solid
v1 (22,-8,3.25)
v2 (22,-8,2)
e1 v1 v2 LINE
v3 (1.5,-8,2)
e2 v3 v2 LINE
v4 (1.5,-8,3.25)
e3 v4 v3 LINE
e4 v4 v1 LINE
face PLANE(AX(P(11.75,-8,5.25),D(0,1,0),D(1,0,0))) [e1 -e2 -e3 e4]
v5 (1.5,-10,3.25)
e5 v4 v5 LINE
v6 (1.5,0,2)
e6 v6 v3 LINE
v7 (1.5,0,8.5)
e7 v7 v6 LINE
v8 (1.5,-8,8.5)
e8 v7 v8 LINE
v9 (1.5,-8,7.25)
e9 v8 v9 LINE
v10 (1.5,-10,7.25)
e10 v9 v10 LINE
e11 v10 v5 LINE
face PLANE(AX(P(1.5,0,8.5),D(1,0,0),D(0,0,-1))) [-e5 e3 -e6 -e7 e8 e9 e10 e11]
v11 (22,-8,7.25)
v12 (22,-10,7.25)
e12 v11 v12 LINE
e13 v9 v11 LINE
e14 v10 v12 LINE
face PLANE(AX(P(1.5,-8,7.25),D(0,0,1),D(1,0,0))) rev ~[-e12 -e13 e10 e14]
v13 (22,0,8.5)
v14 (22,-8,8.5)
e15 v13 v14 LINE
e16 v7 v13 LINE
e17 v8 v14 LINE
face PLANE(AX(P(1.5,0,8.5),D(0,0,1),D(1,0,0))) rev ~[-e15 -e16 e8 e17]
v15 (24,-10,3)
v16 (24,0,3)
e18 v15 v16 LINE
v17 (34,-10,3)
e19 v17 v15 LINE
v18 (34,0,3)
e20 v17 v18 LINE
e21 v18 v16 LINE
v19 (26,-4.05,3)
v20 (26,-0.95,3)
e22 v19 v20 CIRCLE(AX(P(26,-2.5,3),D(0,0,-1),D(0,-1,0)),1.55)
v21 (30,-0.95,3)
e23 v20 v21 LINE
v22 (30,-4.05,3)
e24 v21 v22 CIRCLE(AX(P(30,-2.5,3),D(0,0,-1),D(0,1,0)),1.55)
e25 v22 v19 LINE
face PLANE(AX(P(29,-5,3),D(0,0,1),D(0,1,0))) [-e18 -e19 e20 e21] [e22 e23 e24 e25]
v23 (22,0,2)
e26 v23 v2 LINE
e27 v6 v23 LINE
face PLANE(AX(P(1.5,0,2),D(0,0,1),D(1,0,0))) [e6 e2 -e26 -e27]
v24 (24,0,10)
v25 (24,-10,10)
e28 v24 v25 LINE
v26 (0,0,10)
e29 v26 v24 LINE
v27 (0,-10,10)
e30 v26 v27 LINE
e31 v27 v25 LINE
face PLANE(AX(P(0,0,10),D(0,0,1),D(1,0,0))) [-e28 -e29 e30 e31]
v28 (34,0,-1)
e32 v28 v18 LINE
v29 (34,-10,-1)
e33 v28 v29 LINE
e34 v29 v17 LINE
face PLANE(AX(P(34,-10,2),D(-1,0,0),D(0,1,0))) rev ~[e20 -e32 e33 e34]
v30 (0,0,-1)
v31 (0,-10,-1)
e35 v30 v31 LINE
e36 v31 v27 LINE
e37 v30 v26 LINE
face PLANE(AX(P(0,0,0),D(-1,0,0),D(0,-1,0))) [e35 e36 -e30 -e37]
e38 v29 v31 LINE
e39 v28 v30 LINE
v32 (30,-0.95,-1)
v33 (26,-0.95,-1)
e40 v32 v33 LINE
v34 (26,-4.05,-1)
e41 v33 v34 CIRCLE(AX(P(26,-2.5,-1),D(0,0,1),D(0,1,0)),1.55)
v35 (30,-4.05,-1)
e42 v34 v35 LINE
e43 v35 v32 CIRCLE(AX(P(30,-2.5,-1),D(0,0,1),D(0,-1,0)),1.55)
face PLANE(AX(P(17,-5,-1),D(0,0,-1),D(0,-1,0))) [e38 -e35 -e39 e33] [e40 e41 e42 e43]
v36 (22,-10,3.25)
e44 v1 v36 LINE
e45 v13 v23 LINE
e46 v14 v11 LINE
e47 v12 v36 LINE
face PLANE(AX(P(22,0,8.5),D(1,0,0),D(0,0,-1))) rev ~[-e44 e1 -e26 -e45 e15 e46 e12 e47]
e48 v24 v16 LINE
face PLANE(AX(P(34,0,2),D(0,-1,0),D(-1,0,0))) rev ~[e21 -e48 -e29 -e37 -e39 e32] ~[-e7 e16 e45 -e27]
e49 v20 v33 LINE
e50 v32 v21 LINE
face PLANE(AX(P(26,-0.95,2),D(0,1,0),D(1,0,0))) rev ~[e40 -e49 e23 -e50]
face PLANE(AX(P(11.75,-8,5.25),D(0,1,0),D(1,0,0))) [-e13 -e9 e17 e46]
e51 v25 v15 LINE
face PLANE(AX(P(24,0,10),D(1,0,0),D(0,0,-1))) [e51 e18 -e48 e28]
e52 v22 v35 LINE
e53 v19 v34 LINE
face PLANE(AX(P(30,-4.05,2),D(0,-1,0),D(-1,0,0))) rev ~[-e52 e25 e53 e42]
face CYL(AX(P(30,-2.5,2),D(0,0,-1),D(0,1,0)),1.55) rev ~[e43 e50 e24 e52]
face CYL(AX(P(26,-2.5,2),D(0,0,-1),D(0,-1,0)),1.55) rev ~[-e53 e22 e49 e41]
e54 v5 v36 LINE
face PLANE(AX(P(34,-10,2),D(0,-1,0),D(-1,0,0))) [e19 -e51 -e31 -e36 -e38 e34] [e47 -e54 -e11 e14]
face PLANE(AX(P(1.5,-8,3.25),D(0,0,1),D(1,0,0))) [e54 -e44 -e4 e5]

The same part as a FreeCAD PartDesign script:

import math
import FreeCAD as App
import Part
import Sketcher
Q = App.Units.Quantity

doc = App.newDocument("Part")
body = doc.addObject("PartDesign::Body", "Body")

sketch1 = body.newObject("Sketcher::SketchObject", "Sketch")
sketch1.AttachmentSupport = (doc.getObject("XZ_Plane"), [""])
sketch1.MapMode = "FlatFace"
sketch1.addGeometry(Part.LineSegment(App.Vector(24, 10, 0), App.Vector(0, 10, 0)), False)
sketch1.addGeometry(Part.LineSegment(App.Vector(0, 10, 0), App.Vector(0, 0, 0)), False)
sketch1.addGeometry(Part.LineSegment(App.Vector(0, 0, 0), App.Vector(34, 0, 0)), False)
sketch1.addGeometry(Part.LineSegment(App.Vector(34, 0, 0), App.Vector(34, 2, 0)), False)
sketch1.addGeometry(Part.LineSegment(App.Vector(34, 2, 0), App.Vector(24, 2, 0)), False)
sketch1.addGeometry(Part.LineSegment(App.Vector(24, 2, 0), App.Vector(24, 10, 0)), False)
sketch1.addConstraint(Sketcher.Constraint("Coincident", 0, 2, 1, 1))
sketch1.addConstraint(Sketcher.Constraint("Coincident", 1, 2, 2, 1))
sketch1.addConstraint(Sketcher.Constraint("Coincident", 2, 2, 3, 1))
sketch1.addConstraint(Sketcher.Constraint("Coincident", 3, 2, 4, 1))
sketch1.addConstraint(Sketcher.Constraint("Coincident", 4, 2, 5, 1))
sketch1.addConstraint(Sketcher.Constraint("Coincident", 5, 2, 0, 1))
sketch1.addConstraint(Sketcher.Constraint("Horizontal", 0))
sketch1.addConstraint(Sketcher.Constraint("Vertical", 1))
sketch1.addConstraint(Sketcher.Constraint("Horizontal", 2))
sketch1.addConstraint(Sketcher.Constraint("Vertical", 3))
sketch1.addConstraint(Sketcher.Constraint("Horizontal", 4))
sketch1.addConstraint(Sketcher.Constraint("Vertical", 5))
sketch1.addConstraint(Sketcher.Constraint("Coincident", 1, 2, -1, 1))
sketch1.addConstraint(Sketcher.Constraint("Equal", 4, 1))
sketch1.addConstraint(Sketcher.Constraint("DistanceX", 0, 2, 0, 1, Q("24 mm")))
sketch1.addConstraint(Sketcher.Constraint("DistanceX", 2, 1, 2, 2, Q("34 mm")))
sketch1.addConstraint(Sketcher.Constraint("DistanceY", 3, 1, 3, 2, Q("2 mm")))
pad1 = body.newObject("PartDesign::Pad", "Pad")
pad1.Profile = sketch1
pad1.Length = 10

sketch2 = body.newObject("Sketcher::SketchObject", "Sketch001")
sketch2.AttachmentSupport = (doc.getObject("XZ_Plane"), [""])
sketch2.MapMode = "FlatFace"
sketch2.addGeometry(Part.LineSegment(App.Vector(2, 2, 0), App.Vector(2, 8, 0)), False)
sketch2.addGeometry(Part.LineSegment(App.Vector(2, 8, 0), App.Vector(22, 8, 0)), False)
sketch2.addGeometry(Part.LineSegment(App.Vector(22, 8, 0), App.Vector(22, 2, 0)), False)
sketch2.addGeometry(Part.LineSegment(App.Vector(22, 2, 0), App.Vector(2, 2, 0)), False)
sketch2.addConstraint(Sketcher.Constraint("Coincident", 0, 2, 1, 1))
sketch2.addConstraint(Sketcher.Constraint("Coincident", 1, 2, 2, 1))
sketch2.addConstraint(Sketcher.Constraint("Coincident", 2, 2, 3, 1))
sketch2.addConstraint(Sketcher.Constraint("Coincident", 3, 2, 0, 1))
sketch2.addConstraint(Sketcher.Constraint("Vertical", 0))
sketch2.addConstraint(Sketcher.Constraint("Horizontal", 1))
sketch2.addConstraint(Sketcher.Constraint("Vertical", 2))
sketch2.addConstraint(Sketcher.Constraint("Horizontal", 3))
sketch2.addConstraint(Sketcher.Constraint("DistanceX", 1, 1, 1, 2, Q("20.5 mm")))
sketch2.addConstraint(Sketcher.Constraint("DistanceY", 0, 1, 0, 2, Q("6.5 mm")))
sketch2.addConstraint(Sketcher.Constraint("DistanceX", -1, 1, 1, 2, Q("22 mm")))
sketch2.addConstraint(Sketcher.Constraint("DistanceY", -1, 1, 2, 2, Q("2 mm")))
pocket1 = body.newObject("PartDesign::Pocket", "Pocket")
pocket1.Profile = sketch2
pocket1.Length = 8
pocket1.Reversed = True

sketch3 = body.newObject("Sketcher::SketchObject", "Sketch002")
sketch3.AttachmentSupport = (doc.getObject("XZ_Plane"), [""])
sketch3.MapMode = "FlatFace"
sketch3.AttachmentOffset = App.Placement(App.Vector(0, 0, 8), App.Rotation())
sketch3.addGeometry(Part.LineSegment(App.Vector(1.5, 3.2, 0), App.Vector(1.5, 7.2, 0)), False)
sketch3.addGeometry(Part.LineSegment(App.Vector(1.5, 7.2, 0), App.Vector(22, 7.2, 0)), False)
sketch3.addGeometry(Part.LineSegment(App.Vector(22, 7.2, 0), App.Vector(22, 3.2, 0)), False)
sketch3.addGeometry(Part.LineSegment(App.Vector(22, 3.2, 0), App.Vector(1.5, 3.2, 0)), False)
sketch3.addConstraint(Sketcher.Constraint("Coincident", 0, 2, 1, 1))
sketch3.addConstraint(Sketcher.Constraint("Coincident", 1, 2, 2, 1))
sketch3.addConstraint(Sketcher.Constraint("Coincident", 2, 2, 3, 1))
sketch3.addConstraint(Sketcher.Constraint("Coincident", 3, 2, 0, 1))
sketch3.addConstraint(Sketcher.Constraint("Vertical", 0))
sketch3.addConstraint(Sketcher.Constraint("Horizontal", 1))
sketch3.addConstraint(Sketcher.Constraint("Vertical", 2))
sketch3.addConstraint(Sketcher.Constraint("Horizontal", 3))
sketch3.addConstraint(Sketcher.Constraint("DistanceY", 0, 1, 0, 2, Q("4 mm")))
sketch3.addConstraint(Sketcher.Constraint("DistanceX", 1, 1, 1, 2, Q("20.5 mm")))
sketch3.addConstraint(Sketcher.Constraint("DistanceX", -1, 1, 1, 2, Q("22 mm")))
sketch3.addConstraint(Sketcher.Constraint("DistanceY", -1, 1, 0, 2, Q("7.25 mm")))
pocket2 = body.newObject("PartDesign::Pocket", "Pocket001")
pocket2.Profile = sketch3
pocket2.Length = 5
pocket2.Reversed = True

sketch4 = body.newObject("Sketcher::SketchObject", "Sketch003")
sketch4.AttachmentSupport = (doc.getObject("XY_Plane"), [""])
sketch4.MapMode = "FlatFace"
sketch4.AttachmentOffset = App.Placement(App.Vector(0, 0, 2), App.Rotation())
sketch4.addGeometry(Part.ArcOfCircle(Part.Circle(App.Vector(30, -2.5, 0), App.Vector(0, 0, 1), 1.6), math.radians(-90), math.radians(90)), False)
sketch4.addGeometry(Part.LineSegment(App.Vector(30, -0.9, 0), App.Vector(26, -0.9, 0)), False)
sketch4.addGeometry(Part.ArcOfCircle(Part.Circle(App.Vector(26, -2.5, 0), App.Vector(0, 0, 1), 1.6), math.radians(90), math.radians(270)), False)
sketch4.addGeometry(Part.LineSegment(App.Vector(26, -4, 0), App.Vector(30, -4, 0)), False)
sketch4.addConstraint(Sketcher.Constraint("Tangent", 0, 2, 1, 1))
sketch4.addConstraint(Sketcher.Constraint("Tangent", 1, 2, 2, 1))
sketch4.addConstraint(Sketcher.Constraint("Tangent", 2, 2, 3, 1))
sketch4.addConstraint(Sketcher.Constraint("Tangent", 3, 2, 0, 1))
sketch4.addConstraint(Sketcher.Constraint("Horizontal", 1))
sketch4.addConstraint(Sketcher.Constraint("Horizontal", 3))
sketch4.addConstraint(Sketcher.Constraint("DistanceX", 1, 2, 1, 1, Q("4 mm")))
sketch4.addConstraint(Sketcher.Constraint("Radius", 0, Q("1.55 mm")))
sketch4.addConstraint(Sketcher.Constraint("DistanceX", -1, 1, 0, 3, Q("30 mm")))
sketch4.addConstraint(Sketcher.Constraint("DistanceY", 0, 3, -1, 1, Q("2.5 mm")))
pocket3 = body.newObject("PartDesign::Pocket", "Pocket002")
pocket3.Profile = sketch4
pocket3.Length = 5

sketch5 = body.newObject("Sketcher::SketchObject", "Sketch004")
sketch5.AttachmentSupport = (doc.getObject("XY_Plane"), [""])
sketch5.MapMode = "FlatFace"
sketch5.addGeometry(Part.LineSegment(App.Vector(0, 0, 0), App.Vector(34, 0, 0)), False)
sketch5.addGeometry(Part.LineSegment(App.Vector(34, 0, 0), App.Vector(34, -10, 0)), False)
sketch5.addGeometry(Part.LineSegment(App.Vector(34, -10, 0), App.Vector(0, -10, 0)), False)
sketch5.addGeometry(Part.LineSegment(App.Vector(0, -10, 0), App.Vector(0, 0, 0)), False)
sketch5.addGeometry(Part.ArcOfCircle(Part.Circle(App.Vector(26, -2.5, 0), App.Vector(0, 0, 1), 1.6), math.radians(90), math.radians(270)), False)
sketch5.addGeometry(Part.LineSegment(App.Vector(26, -4, 0), App.Vector(30, -4, 0)), False)
sketch5.addGeometry(Part.ArcOfCircle(Part.Circle(App.Vector(30, -2.5, 0), App.Vector(0, 0, 1), 1.6), math.radians(-90), math.radians(90)), False)
sketch5.addGeometry(Part.LineSegment(App.Vector(30, -0.9, 0), App.Vector(26, -0.9, 0)), False)
sketch5.addConstraint(Sketcher.Constraint("Coincident", 0, 2, 1, 1))
sketch5.addConstraint(Sketcher.Constraint("Coincident", 1, 2, 2, 1))
sketch5.addConstraint(Sketcher.Constraint("Coincident", 2, 2, 3, 1))
sketch5.addConstraint(Sketcher.Constraint("Coincident", 3, 2, 0, 1))
sketch5.addConstraint(Sketcher.Constraint("Tangent", 4, 2, 5, 1))
sketch5.addConstraint(Sketcher.Constraint("Tangent", 5, 2, 6, 1))
sketch5.addConstraint(Sketcher.Constraint("Tangent", 6, 2, 7, 1))
sketch5.addConstraint(Sketcher.Constraint("Tangent", 7, 2, 4, 1))
sketch5.addConstraint(Sketcher.Constraint("Horizontal", 0))
sketch5.addConstraint(Sketcher.Constraint("Vertical", 1))
sketch5.addConstraint(Sketcher.Constraint("Horizontal", 2))
sketch5.addConstraint(Sketcher.Constraint("Vertical", 3))
sketch5.addConstraint(Sketcher.Constraint("Horizontal", 5))
sketch5.addConstraint(Sketcher.Constraint("Horizontal", 7))
sketch5.addConstraint(Sketcher.Constraint("Coincident", 3, 2, -1, 1))
sketch5.addConstraint(Sketcher.Constraint("DistanceX", 0, 1, 0, 2, Q("34 mm")))
sketch5.addConstraint(Sketcher.Constraint("DistanceX", 5, 1, 5, 2, Q("4 mm")))
sketch5.addConstraint(Sketcher.Constraint("DistanceY", 1, 2, 1, 1, Q("10 mm")))
sketch5.addConstraint(Sketcher.Constraint("Radius", 4, Q("1.55 mm")))
sketch5.addConstraint(Sketcher.Constraint("DistanceX", -1, 1, 4, 3, Q("26 mm")))
sketch5.addConstraint(Sketcher.Constraint("DistanceY", 4, 3, -1, 1, Q("2.5 mm")))
pad2 = body.newObject("PartDesign::Pad", "Pad001")
pad2.Profile = sketch5
pad2.Length = 1
pad2.Reversed = True

sketch6 = body.newObject("Sketcher::SketchObject", "Sketch005")
sketch6.AttachmentSupport = (doc.getObject("XY_Plane"), [""])
sketch6.MapMode = "FlatFace"
sketch6.AttachmentOffset = App.Placement(App.Vector(0, 0, 2), App.Rotation())
sketch6.addGeometry(Part.LineSegment(App.Vector(24, -10, 0), App.Vector(34, -10, 0)), False)
sketch6.addGeometry(Part.LineSegment(App.Vector(34, -10, 0), App.Vector(34, 0, 0)), False)
sketch6.addGeometry(Part.LineSegment(App.Vector(34, 0, 0), App.Vector(24, 0, 0)), False)
sketch6.addGeometry(Part.LineSegment(App.Vector(24, 0, 0), App.Vector(24, -10, 0)), False)
sketch6.addGeometry(Part.LineSegment(App.Vector(26, -0.9, 0), App.Vector(30, -0.9, 0)), False)
sketch6.addGeometry(Part.ArcOfCircle(Part.Circle(App.Vector(30, -2.5, 0), App.Vector(0, 0, 1), 1.6), math.radians(-90), math.radians(90)), False)
sketch6.addGeometry(Part.LineSegment(App.Vector(30, -4, 0), App.Vector(26, -4, 0)), False)
sketch6.addGeometry(Part.ArcOfCircle(Part.Circle(App.Vector(26, -2.5, 0), App.Vector(0, 0, 1), 1.6), math.radians(90), math.radians(270)), False)
sketch6.addConstraint(Sketcher.Constraint("Coincident", 0, 2, 1, 1))
sketch6.addConstraint(Sketcher.Constraint("Coincident", 1, 2, 2, 1))
sketch6.addConstraint(Sketcher.Constraint("Coincident", 2, 2, 3, 1))
sketch6.addConstraint(Sketcher.Constraint("Coincident", 3, 2, 0, 1))
sketch6.addConstraint(Sketcher.Constraint("Tangent", 4, 2, 5, 2))
sketch6.addConstraint(Sketcher.Constraint("Tangent", 5, 1, 6, 1))
sketch6.addConstraint(Sketcher.Constraint("Tangent", 6, 2, 7, 2))
sketch6.addConstraint(Sketcher.Constraint("Tangent", 7, 1, 4, 1))
sketch6.addConstraint(Sketcher.Constraint("Horizontal", 0))
sketch6.addConstraint(Sketcher.Constraint("Vertical", 1))
sketch6.addConstraint(Sketcher.Constraint("Horizontal", 2))
sketch6.addConstraint(Sketcher.Constraint("Vertical", 3))
sketch6.addConstraint(Sketcher.Constraint("Horizontal", 4))
sketch6.addConstraint(Sketcher.Constraint("Horizontal", 6))
sketch6.addConstraint(Sketcher.Constraint("PointOnObject", 1, 2, -1))
sketch6.addConstraint(Sketcher.Constraint("Equal", 2, 1))
sketch6.addConstraint(Sketcher.Constraint("DistanceX", 0, 1, 0, 2, Q("10 mm")))
sketch6.addConstraint(Sketcher.Constraint("DistanceX", 4, 1, 4, 2, Q("4 mm")))
sketch6.addConstraint(Sketcher.Constraint("Radius", 5, Q("1.55 mm")))
sketch6.addConstraint(Sketcher.Constraint("DistanceX", -1, 1, 5, 3, Q("30 mm")))
sketch6.addConstraint(Sketcher.Constraint("DistanceX", -1, 1, 0, 2, Q("34 mm")))
sketch6.addConstraint(Sketcher.Constraint("DistanceY", 5, 3, -1, 1, Q("2.5 mm")))
pad3 = body.newObject("PartDesign::Pad", "Pad002")
pad3.Profile = sketch6
pad3.Length = 1

doc.recompute()
